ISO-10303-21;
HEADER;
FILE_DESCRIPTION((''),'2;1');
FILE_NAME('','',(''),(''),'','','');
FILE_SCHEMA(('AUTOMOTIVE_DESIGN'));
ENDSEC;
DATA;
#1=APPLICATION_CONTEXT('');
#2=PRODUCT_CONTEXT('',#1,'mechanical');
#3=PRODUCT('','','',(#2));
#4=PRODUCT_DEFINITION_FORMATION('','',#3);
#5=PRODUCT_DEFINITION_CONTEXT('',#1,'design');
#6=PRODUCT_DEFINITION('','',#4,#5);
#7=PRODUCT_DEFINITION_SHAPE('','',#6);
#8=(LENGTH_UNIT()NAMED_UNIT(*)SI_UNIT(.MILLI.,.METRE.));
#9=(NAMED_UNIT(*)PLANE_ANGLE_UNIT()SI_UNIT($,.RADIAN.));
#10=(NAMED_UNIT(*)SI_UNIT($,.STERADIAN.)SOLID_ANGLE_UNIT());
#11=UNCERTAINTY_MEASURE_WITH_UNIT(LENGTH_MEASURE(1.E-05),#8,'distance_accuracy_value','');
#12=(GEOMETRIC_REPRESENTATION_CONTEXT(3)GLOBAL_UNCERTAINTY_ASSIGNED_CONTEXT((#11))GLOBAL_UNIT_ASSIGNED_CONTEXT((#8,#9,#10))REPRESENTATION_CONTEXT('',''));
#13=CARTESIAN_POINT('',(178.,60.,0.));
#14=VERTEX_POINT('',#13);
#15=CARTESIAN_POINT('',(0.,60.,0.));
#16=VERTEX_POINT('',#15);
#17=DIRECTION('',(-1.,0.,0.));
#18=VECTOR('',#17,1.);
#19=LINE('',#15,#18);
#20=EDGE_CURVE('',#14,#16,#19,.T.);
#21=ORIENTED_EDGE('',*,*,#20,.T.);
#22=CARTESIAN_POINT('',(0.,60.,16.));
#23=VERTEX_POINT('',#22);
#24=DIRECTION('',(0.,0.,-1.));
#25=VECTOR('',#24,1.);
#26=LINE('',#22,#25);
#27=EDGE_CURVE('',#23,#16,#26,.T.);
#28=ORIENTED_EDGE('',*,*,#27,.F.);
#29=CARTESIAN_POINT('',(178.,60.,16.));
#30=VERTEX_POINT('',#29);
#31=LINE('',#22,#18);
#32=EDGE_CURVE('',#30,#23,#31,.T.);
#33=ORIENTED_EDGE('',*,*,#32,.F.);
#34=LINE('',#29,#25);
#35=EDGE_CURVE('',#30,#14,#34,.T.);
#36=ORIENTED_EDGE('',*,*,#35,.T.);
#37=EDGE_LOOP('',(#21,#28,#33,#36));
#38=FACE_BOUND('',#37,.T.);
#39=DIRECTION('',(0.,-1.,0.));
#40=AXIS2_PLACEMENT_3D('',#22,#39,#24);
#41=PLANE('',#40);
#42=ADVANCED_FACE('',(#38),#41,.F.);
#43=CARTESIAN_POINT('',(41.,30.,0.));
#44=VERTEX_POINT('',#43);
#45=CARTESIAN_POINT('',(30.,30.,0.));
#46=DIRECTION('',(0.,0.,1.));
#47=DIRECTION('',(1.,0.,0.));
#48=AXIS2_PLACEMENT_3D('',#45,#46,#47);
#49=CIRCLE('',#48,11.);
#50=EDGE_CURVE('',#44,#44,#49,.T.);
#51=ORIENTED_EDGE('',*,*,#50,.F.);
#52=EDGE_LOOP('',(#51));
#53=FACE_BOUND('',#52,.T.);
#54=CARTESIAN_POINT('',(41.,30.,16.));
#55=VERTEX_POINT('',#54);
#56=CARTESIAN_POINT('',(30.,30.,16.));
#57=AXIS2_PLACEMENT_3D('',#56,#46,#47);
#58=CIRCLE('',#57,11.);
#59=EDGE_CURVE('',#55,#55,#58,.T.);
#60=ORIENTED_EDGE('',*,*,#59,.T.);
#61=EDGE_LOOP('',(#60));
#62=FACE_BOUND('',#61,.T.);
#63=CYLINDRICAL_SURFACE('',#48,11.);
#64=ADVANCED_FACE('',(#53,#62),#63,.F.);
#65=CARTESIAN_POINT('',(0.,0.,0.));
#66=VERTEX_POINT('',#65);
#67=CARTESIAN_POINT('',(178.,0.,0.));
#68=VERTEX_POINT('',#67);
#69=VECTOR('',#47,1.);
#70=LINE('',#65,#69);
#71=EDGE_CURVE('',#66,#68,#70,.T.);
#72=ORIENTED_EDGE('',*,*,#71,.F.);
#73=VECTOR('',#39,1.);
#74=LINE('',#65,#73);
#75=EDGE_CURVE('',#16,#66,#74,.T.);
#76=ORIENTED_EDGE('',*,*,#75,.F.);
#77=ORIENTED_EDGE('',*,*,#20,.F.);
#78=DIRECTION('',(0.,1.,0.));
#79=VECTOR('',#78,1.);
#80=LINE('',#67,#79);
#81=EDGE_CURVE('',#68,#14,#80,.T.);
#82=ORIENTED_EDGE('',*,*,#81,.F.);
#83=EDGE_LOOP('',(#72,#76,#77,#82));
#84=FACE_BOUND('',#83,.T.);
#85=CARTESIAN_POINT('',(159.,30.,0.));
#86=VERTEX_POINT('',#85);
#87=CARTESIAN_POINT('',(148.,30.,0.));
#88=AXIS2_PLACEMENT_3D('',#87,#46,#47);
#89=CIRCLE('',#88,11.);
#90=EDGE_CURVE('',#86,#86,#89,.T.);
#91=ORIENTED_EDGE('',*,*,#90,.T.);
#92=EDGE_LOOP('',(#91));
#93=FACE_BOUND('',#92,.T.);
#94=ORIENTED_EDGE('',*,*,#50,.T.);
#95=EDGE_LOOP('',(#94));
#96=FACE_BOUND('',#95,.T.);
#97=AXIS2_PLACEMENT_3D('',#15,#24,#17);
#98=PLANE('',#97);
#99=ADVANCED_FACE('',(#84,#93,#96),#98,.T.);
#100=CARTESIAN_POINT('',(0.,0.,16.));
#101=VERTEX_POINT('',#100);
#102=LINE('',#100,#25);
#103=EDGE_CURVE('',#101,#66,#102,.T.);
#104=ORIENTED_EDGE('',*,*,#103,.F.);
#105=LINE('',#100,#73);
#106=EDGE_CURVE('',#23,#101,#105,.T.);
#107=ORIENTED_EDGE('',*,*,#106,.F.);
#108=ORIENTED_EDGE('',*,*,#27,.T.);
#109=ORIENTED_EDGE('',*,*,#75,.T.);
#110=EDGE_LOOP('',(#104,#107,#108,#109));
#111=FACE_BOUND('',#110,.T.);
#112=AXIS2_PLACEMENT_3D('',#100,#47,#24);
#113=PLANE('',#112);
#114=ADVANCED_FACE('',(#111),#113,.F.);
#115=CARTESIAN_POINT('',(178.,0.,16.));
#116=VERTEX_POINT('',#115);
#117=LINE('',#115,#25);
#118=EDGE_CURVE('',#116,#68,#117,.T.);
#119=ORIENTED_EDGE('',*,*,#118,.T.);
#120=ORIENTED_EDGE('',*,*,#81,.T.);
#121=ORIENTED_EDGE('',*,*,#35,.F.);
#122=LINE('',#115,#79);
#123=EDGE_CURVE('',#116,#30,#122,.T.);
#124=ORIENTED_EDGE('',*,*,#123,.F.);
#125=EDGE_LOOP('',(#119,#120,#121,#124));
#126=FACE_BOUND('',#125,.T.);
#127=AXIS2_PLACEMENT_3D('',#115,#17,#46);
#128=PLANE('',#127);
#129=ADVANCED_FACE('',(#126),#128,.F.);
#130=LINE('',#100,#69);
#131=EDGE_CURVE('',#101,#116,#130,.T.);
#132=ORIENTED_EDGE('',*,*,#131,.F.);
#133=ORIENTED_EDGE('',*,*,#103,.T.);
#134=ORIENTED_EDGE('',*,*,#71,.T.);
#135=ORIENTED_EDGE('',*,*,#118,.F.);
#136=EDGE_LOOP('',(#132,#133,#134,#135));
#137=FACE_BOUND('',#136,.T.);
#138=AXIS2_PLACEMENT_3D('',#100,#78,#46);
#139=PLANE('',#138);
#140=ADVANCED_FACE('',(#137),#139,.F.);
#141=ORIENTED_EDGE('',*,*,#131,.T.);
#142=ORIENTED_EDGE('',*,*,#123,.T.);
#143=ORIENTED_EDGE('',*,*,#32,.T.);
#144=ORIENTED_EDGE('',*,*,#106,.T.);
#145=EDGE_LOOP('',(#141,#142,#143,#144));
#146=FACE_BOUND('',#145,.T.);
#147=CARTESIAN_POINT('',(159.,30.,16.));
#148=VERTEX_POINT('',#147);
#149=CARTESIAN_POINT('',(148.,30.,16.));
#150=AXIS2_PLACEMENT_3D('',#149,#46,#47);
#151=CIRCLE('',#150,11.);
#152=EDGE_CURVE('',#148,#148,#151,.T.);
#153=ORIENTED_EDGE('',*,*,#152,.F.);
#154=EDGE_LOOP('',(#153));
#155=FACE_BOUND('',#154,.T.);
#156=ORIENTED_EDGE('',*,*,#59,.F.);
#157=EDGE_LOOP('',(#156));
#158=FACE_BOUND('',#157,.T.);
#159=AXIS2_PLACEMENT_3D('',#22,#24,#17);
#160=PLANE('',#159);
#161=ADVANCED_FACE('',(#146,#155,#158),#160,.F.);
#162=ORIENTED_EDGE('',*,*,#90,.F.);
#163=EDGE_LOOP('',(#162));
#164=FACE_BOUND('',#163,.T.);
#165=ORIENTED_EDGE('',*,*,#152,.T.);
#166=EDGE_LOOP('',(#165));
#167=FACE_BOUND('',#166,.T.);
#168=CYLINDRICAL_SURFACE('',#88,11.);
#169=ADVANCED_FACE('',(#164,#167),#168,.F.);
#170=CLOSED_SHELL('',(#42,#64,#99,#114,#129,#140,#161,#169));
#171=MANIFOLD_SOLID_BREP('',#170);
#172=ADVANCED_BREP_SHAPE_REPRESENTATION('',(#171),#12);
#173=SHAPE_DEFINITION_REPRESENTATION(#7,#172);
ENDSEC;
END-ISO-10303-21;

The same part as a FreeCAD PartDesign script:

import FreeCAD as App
import Part
import Sketcher
from FreeCAD import Vector


def add_polygon(sketch, points):
    """Adds a closed chain of lines whose ends are joined by coincident constraints."""
    first, n = sketch.GeometryCount, len(points)
    for a, b in zip(points, points[1:] + points[:1]):
        sketch.addGeometry(Part.LineSegment(App.Vector(*a, 0), App.Vector(*b, 0)), False)
    for i in range(n):
        sketch.addConstraint(Sketcher.Constraint("Coincident", first + i, 2, first + (i + 1) % n, 1))

doc = App.newDocument("Part")
body = doc.addObject("PartDesign::Body", "Body")

sketch1 = body.newObject("Sketcher::SketchObject", "Sketch")
sketch1.AttachmentSupport = (doc.getObject("XY_Plane"), [""])
sketch1.MapMode = "FlatFace"
add_polygon(sketch1, [(0, 60), (0, 0), (178, 0), (178, 60)])
sketch1.addConstraint(Sketcher.Constraint("Vertical", 0))
sketch1.addConstraint(Sketcher.Constraint("Horizontal", 1))
sketch1.addConstraint(Sketcher.Constraint("Vertical", 2))
sketch1.addConstraint(Sketcher.Constraint("Horizontal", 3))
sketch1.addConstraint(Sketcher.Constraint("Coincident", 0, 2, -1, 1))
sketch1.addConstraint(Sketcher.Constraint("DistanceX", 1, 1, 1, 2, 178.0))
sketch1.addConstraint(Sketcher.Constraint("DistanceY", 0, 2, 0, 1, 60.0))
pad1 = body.newObject("PartDesign::Pad", "Pad")
pad1.Profile = sketch1
pad1.Length = 16

sketch2 = body.newObject("Sketcher::SketchObject", "Sketch001")
sketch2.AttachmentSupport = (doc.getObject("XY_Plane"), [""])
sketch2.MapMode = "FlatFace"
sketch2.AttachmentOffset = App.Placement(Vector(0, 0, 16), App.Rotation())
sketch2.addGeometry(Part.Circle(Vector(30, 30, 0), Vector(0, 0, 1), 11), False)
sketch2.addGeometry(Part.Circle(Vector(148, 30, 0), Vector(0, 0, 1), 11), False)
sketch2.addConstraint(Sketcher.Constraint("Equal", 0, 1))
sketch2.addConstraint(Sketcher.Constraint("Horizontal", 0, 3, 1, 3))
sketch2.addConstraint(Sketcher.Constraint("Diameter", 0, 22.0))
sketch2.addConstraint(Sketcher.Constraint("DistanceX", -1, 1, 0, 3, 30.0))
sketch2.addConstraint(Sketcher.Constraint("DistanceY", -1, 1, 0, 3, 30.0))
sketch2.addConstraint(Sketcher.Constraint("DistanceX", -1, 1, 1, 3, 148.0))
pocket1 = body.newObject("PartDesign::Pocket", "Pocket")
pocket1.Profile = sketch2
pocket1.Type = "ThroughAll"

doc.recompute()
